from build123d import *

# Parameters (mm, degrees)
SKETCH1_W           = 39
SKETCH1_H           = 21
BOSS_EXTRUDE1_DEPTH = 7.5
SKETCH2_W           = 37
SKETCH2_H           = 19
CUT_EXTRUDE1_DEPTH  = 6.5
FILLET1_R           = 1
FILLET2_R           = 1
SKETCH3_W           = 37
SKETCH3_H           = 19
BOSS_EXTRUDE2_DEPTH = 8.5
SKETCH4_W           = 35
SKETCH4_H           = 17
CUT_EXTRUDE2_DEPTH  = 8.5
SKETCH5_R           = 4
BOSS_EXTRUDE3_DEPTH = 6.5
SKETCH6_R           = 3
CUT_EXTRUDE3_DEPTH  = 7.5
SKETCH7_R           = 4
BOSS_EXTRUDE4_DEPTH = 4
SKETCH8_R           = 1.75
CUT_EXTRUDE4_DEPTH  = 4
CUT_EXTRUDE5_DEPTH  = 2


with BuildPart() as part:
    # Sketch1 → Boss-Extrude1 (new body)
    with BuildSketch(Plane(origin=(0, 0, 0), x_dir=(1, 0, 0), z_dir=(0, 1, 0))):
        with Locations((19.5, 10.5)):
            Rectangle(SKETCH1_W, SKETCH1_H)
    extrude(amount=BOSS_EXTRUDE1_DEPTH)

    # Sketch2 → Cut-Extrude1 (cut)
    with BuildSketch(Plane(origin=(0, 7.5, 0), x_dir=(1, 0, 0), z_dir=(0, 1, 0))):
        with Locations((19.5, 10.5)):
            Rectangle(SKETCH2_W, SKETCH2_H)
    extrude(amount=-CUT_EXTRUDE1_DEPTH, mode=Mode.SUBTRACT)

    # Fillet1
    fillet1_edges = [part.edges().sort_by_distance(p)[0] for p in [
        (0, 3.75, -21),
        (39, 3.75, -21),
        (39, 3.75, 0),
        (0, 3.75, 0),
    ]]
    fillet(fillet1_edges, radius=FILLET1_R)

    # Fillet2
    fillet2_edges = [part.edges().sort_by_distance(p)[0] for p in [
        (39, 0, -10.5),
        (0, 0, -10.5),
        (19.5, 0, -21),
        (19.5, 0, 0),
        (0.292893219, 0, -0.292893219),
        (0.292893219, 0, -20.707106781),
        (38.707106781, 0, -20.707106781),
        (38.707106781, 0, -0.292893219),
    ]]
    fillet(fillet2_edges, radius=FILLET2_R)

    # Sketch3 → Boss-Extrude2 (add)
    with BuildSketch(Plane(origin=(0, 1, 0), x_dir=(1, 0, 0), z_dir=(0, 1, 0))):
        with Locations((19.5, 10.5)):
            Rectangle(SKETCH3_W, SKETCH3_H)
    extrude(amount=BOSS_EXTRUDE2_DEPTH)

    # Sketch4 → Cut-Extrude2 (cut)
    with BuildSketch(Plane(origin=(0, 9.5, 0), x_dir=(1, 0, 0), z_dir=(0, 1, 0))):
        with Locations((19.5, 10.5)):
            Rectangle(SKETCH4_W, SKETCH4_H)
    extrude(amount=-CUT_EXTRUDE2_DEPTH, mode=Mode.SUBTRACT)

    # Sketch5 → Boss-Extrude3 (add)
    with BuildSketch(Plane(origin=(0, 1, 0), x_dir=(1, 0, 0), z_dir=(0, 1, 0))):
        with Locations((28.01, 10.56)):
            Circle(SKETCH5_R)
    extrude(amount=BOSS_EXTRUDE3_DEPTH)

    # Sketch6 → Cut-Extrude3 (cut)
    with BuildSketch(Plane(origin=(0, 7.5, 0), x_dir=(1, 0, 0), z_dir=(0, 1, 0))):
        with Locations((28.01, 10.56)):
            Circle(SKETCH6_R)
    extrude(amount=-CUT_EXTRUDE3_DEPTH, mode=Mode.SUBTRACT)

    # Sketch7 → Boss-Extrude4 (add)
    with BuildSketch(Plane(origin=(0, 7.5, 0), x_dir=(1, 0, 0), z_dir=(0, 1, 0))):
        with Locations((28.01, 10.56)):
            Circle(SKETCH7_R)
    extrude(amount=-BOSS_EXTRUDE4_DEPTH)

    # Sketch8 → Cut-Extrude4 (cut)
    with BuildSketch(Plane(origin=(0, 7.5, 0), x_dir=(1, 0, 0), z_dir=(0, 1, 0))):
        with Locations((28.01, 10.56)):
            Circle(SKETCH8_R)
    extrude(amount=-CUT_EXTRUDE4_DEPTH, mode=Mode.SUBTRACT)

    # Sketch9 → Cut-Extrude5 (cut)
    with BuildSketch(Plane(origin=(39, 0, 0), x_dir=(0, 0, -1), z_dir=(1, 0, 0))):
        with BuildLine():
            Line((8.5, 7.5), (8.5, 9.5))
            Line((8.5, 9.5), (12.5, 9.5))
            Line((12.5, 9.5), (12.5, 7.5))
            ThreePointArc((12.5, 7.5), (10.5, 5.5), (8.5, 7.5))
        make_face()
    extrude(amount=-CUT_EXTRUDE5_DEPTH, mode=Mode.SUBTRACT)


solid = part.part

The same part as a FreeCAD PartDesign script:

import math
import FreeCAD as App
import Part
import Sketcher
Q = App.Units.Quantity


def edges_at(feature, points):
    """Names of the edges that pass closest to the given points."""
    edges = feature.Shape.Edges
    near = lambda p: min(range(len(edges)), key=lambda i: edges[i].distToShape(Part.Vertex(*p))[0])
    return sorted({f"Edge{near(p) + 1}" for p in points})

doc = App.newDocument("Part")
body = doc.addObject("PartDesign::Body", "Body")

sketch1 = body.newObject("Sketcher::SketchObject", "Sketch")
sketch1.AttachmentSupport = (doc.getObject("XZ_Plane"), [""])
sketch1.MapMode = "FlatFace"
sketch1.addGeometry([
    Part.LineSegment(App.Vector(0, -21, 0), App.Vector(0, 0, 0)),
    Part.LineSegment(App.Vector(0, 0, 0), App.Vector(39, 0, 0)),
    Part.LineSegment(App.Vector(39, 0, 0), App.Vector(39, -21, 0)),
    Part.LineSegment(App.Vector(39, -21, 0), App.Vector(0, -21, 0)),
], False)
sketch1.addConstraint([
    Sketcher.Constraint("Coincident", 0, 2, 1, 1),
    Sketcher.Constraint("Coincident", 1, 2, 2, 1),
    Sketcher.Constraint("Coincident", 2, 2, 3, 1),
    Sketcher.Constraint("Coincident", 3, 2, 0, 1),
    Sketcher.Constraint("Vertical", 0),
    Sketcher.Constraint("Horizontal", 1),
    Sketcher.Constraint("Vertical", 2),
    Sketcher.Constraint("Horizontal", 3),
    Sketcher.Constraint("Coincident", 0, 2, -1, 1),
    Sketcher.Constraint("DistanceX", 1, 1, 1, 2, Q("39 mm")),
    Sketcher.Constraint("DistanceY", 0, 1, 0, 2, Q("21 mm")),
])
pad1 = body.newObject("PartDesign::Pad", "Pad")
pad1.Profile = sketch1
pad1.Length = 7.5
pad1.Reversed = True

sketch2 = body.newObject("Sketcher::SketchObject", "Sketch001")
sketch2.AttachmentSupport = (doc.getObject("XZ_Plane"), [""])
sketch2.MapMode = "FlatFace"
sketch2.AttachmentOffset = App.Placement(App.Vector(0, 0, -7.5), App.Rotation())
sketch2.addGeometry([
    Part.LineSegment(App.Vector(1, -20, 0), App.Vector(1, -1, 0)),
    Part.LineSegment(App.Vector(1, -1, 0), App.Vector(38, -1, 0)),
    Part.LineSegment(App.Vector(38, -1, 0), App.Vector(38, -20, 0)),
    Part.LineSegment(App.Vector(38, -20, 0), App.Vector(1, -20, 0)),
], False)
sketch2.addConstraint([
    Sketcher.Constraint("Coincident", 0, 2, 1, 1),
    Sketcher.Constraint("Coincident", 1, 2, 2, 1),
    Sketcher.Constraint("Coincident", 2, 2, 3, 1),
    Sketcher.Constraint("Coincident", 3, 2, 0, 1),
    Sketcher.Constraint("Vertical", 0),
    Sketcher.Constraint("Horizontal", 1),
    Sketcher.Constraint("Vertical", 2),
    Sketcher.Constraint("Horizontal", 3),
    Sketcher.Constraint("DistanceX", 1, 1, 1, 2, Q("37 mm")),
    Sketcher.Constraint("DistanceY", 0, 1, 0, 2, Q("19 mm")),
    Sketcher.Constraint("DistanceX", -1, 1, 0, 2, Q("1 mm")),
    Sketcher.Constraint("DistanceY", 0, 2, -1, 1, Q("1 mm")),
])
pocket1 = body.newObject("PartDesign::Pocket", "Pocket")
pocket1.Profile = sketch2
pocket1.Length = 6.5
pocket1.Reversed = True
doc.recompute()

fillet = body.newObject("PartDesign::Fillet", "Fillet")
fillet.Base = (pocket1, edges_at(pocket1, [
    (0, 3.75, -21),
    (39, 3.75, -21),
    (39, 3.75, 0),
    (0, 3.75, 0),
]))
fillet.Radius = 1
doc.recompute()

fillet2 = body.newObject("PartDesign::Fillet", "Fillet001")
fillet2.Base = (fillet, edges_at(fillet, [
    (39, 0, -10.5),
    (0, 0, -10.5),
    (19.5, 0, -21),
    (19.5, 0, 0),
    (0.293, 0, -0.293),
    (0.293, 0, -20.707),
    (38.707, 0, -20.707),
    (38.707, 0, -0.293),
]))
fillet2.Radius = 1

sketch3 = body.newObject("Sketcher::SketchObject", "Sketch002")
sketch3.AttachmentSupport = (doc.getObject("XZ_Plane"), [""])
sketch3.MapMode = "FlatFace"
sketch3.AttachmentOffset = App.Placement(App.Vector(0, 0, -1), App.Rotation())
sketch3.addGeometry([
    Part.LineSegment(App.Vector(1, -20, 0), App.Vector(1, -1, 0)),
    Part.LineSegment(App.Vector(1, -1, 0), App.Vector(38, -1, 0)),
    Part.LineSegment(App.Vector(38, -1, 0), App.Vector(38, -20, 0)),
    Part.LineSegment(App.Vector(38, -20, 0), App.Vector(1, -20, 0)),
], False)
sketch3.addConstraint([
    Sketcher.Constraint("Coincident", 0, 2, 1, 1),
    Sketcher.Constraint("Coincident", 1, 2, 2, 1),
    Sketcher.Constraint("Coincident", 2, 2, 3, 1),
    Sketcher.Constraint("Coincident", 3, 2, 0, 1),
    Sketcher.Constraint("Vertical", 0),
    Sketcher.Constraint("Horizontal", 1),
    Sketcher.Constraint("Vertical", 2),
    Sketcher.Constraint("Horizontal", 3),
    Sketcher.Constraint("DistanceX", 1, 1, 1, 2, Q("37 mm")),
    Sketcher.Constraint("DistanceY", 0, 1, 0, 2, Q("19 mm")),
    Sketcher.Constraint("DistanceX", -1, 1, 0, 2, Q("1 mm")),
    Sketcher.Constraint("DistanceY", 0, 2, -1, 1, Q("1 mm")),
])
pad2 = body.newObject("PartDesign::Pad", "Pad001")
pad2.Profile = sketch3
pad2.Length = 8.5
pad2.Reversed = True

sketch4 = body.newObject("Sketcher::SketchObject", "Sketch003")
sketch4.AttachmentSupport = (doc.getObject("XZ_Plane"), [""])
sketch4.MapMode = "FlatFace"
sketch4.AttachmentOffset = App.Placement(App.Vector(0, 0, -9.5), App.Rotation())
sketch4.addGeometry([
    Part.LineSegment(App.Vector(2, -19, 0), App.Vector(2, -2, 0)),
    Part.LineSegment(App.Vector(2, -2, 0), App.Vector(37, -2, 0)),
    Part.LineSegment(App.Vector(37, -2, 0), App.Vector(37, -19, 0)),
    Part.LineSegment(App.Vector(37, -19, 0), App.Vector(2, -19, 0)),
], False)
sketch4.addConstraint([
    Sketcher.Constraint("Coincident", 0, 2, 1, 1),
    Sketcher.Constraint("Coincident", 1, 2, 2, 1),
    Sketcher.Constraint("Coincident", 2, 2, 3, 1),
    Sketcher.Constraint("Coincident", 3, 2, 0, 1),
    Sketcher.Constraint("Vertical", 0),
    Sketcher.Constraint("Horizontal", 1),
    Sketcher.Constraint("Vertical", 2),
    Sketcher.Constraint("Horizontal", 3),
    Sketcher.Constraint("DistanceX", 1, 1, 1, 2, Q("35 mm")),
    Sketcher.Constraint("DistanceY", 0, 1, 0, 2, Q("17 mm")),
    Sketcher.Constraint("DistanceX", -1, 1, 0, 2, Q("2 mm")),
    Sketcher.Constraint("DistanceY", 0, 2, -1, 1, Q("2 mm")),
])
pocket2 = body.newObject("PartDesign::Pocket", "Pocket001")
pocket2.Profile = sketch4
pocket2.Length = 8.5
pocket2.Reversed = True

sketch5 = body.newObject("Sketcher::SketchObject", "Sketch004")
sketch5.AttachmentSupport = (doc.getObject("XZ_Plane"), [""])
sketch5.MapMode = "FlatFace"
sketch5.AttachmentOffset = App.Placement(App.Vector(0, 0, -1), App.Rotation())
sketch5.addGeometry(Part.Circle(App.Vector(28.01, -10.56, 0), App.Vector(0, 0, 1), 4), False)
sketch5.addConstraint([
    Sketcher.Constraint("Diameter", 0, Q("8 mm")),
    Sketcher.Constraint("DistanceX", -1, 1, 0, 3, Q("28.01 mm")),
    Sketcher.Constraint("DistanceY", 0, 3, -1, 1, Q("10.56 mm")),
])
pad3 = body.newObject("PartDesign::Pad", "Pad002")
pad3.Profile = sketch5
pad3.Length = 6.5
pad3.Reversed = True

sketch6 = body.newObject("Sketcher::SketchObject", "Sketch005")
sketch6.AttachmentSupport = (doc.getObject("XZ_Plane"), [""])
sketch6.MapMode = "FlatFace"
sketch6.AttachmentOffset = App.Placement(App.Vector(0, 0, -7.5), App.Rotation())
sketch6.addGeometry(Part.Circle(App.Vector(28.01, -10.56, 0), App.Vector(0, 0, 1), 3), False)
sketch6.addConstraint([
    Sketcher.Constraint("Diameter", 0, Q("6 mm")),
    Sketcher.Constraint("DistanceX", -1, 1, 0, 3, Q("28.01 mm")),
    Sketcher.Constraint("DistanceY", 0, 3, -1, 1, Q("10.56 mm")),
])
pocket3 = body.newObject("PartDesign::Pocket", "Pocket002")
pocket3.Profile = sketch6
pocket3.Length = 7.5
pocket3.Reversed = True

sketch7 = body.newObject("Sketcher::SketchObject", "Sketch006")
sketch7.AttachmentSupport = (doc.getObject("XZ_Plane"), [""])
sketch7.MapMode = "FlatFace"
sketch7.AttachmentOffset = App.Placement(App.Vector(0, 0, -7.5), App.Rotation())
sketch7.addGeometry(Part.Circle(App.Vector(28.01, -10.56, 0), App.Vector(0, 0, 1), 4), False)
sketch7.addConstraint([
    Sketcher.Constraint("Diameter", 0, Q("8 mm")),
    Sketcher.Constraint("DistanceX", -1, 1, 0, 3, Q("28.01 mm")),
    Sketcher.Constraint("DistanceY", 0, 3, -1, 1, Q("10.56 mm")),
])
pad4 = body.newObject("PartDesign::Pad", "Pad003")
pad4.Profile = sketch7
pad4.Length = 4

sketch8 = body.newObject("Sketcher::SketchObject", "Sketch007")
sketch8.AttachmentSupport = (doc.getObject("XZ_Plane"), [""])
sketch8.MapMode = "FlatFace"
sketch8.AttachmentOffset = App.Placement(App.Vector(0, 0, -7.5), App.Rotation())
sketch8.addGeometry(Part.Circle(App.Vector(28.01, -10.56, 0), App.Vector(0, 0, 1), 1.75), False)
sketch8.addConstraint([
    Sketcher.Constraint("Diameter", 0, Q("3.5 mm")),
    Sketcher.Constraint("DistanceX", -1, 1, 0, 3, Q("28.01 mm")),
    Sketcher.Constraint("DistanceY", 0, 3, -1, 1, Q("10.56 mm")),
])
pocket4 = body.newObject("PartDesign::Pocket", "Pocket003")
pocket4.Profile = sketch8
pocket4.Length = 4
pocket4.Reversed = True

sketch9 = body.newObject("Sketcher::SketchObject", "Sketch008")
sketch9.AttachmentSupport = (doc.getObject("YZ_Plane"), [""])
sketch9.MapMode = "FlatFace"
sketch9.AttachmentOffset = App.Placement(App.Vector(0, 0, 39), App.Rotation())
sketch9.addGeometry([
    Part.LineSegment(App.Vector(9.5, -8.5, 0), App.Vector(7.5, -8.5, 0)),
    Part.ArcOfCircle(Part.Circle(App.Vector(7.5, -10.5, 0), App.Vector(0, 0, 1), 2), math.radians(90), math.radians(270)),
    Part.LineSegment(App.Vector(7.5, -12.5, 0), App.Vector(9.5, -12.5, 0)),
    Part.LineSegment(App.Vector(9.5, -12.5, 0), App.Vector(9.5, -8.5, 0)),
], False)
sketch9.addConstraint([
    Sketcher.Constraint("Tangent", 0, 2, 1, 1),
    Sketcher.Constraint("Tangent", 1, 2, 2, 1),
    Sketcher.Constraint("Coincident", 2, 2, 3, 1),
    Sketcher.Constraint("Coincident", 3, 2, 0, 1),
    Sketcher.Constraint("Horizontal", 0),
    Sketcher.Constraint("Horizontal", 2),
    Sketcher.Constraint("Vertical", 3),
    Sketcher.Constraint("Radius", 1, Q("2 mm")),
    Sketcher.Constraint("DistanceX", 0, 2, 0, 1, Q("2 mm")),
    Sketcher.Constraint("DistanceX", -1, 1, 1, 3, Q("7.5 mm")),
    Sketcher.Constraint("DistanceY", 1, 3, -1, 1, Q("10.5 mm")),
])
pocket5 = body.newObject("PartDesign::Pocket", "Pocket004")
pocket5.Profile = sketch9
pocket5.Length = 2

doc.recompute()
